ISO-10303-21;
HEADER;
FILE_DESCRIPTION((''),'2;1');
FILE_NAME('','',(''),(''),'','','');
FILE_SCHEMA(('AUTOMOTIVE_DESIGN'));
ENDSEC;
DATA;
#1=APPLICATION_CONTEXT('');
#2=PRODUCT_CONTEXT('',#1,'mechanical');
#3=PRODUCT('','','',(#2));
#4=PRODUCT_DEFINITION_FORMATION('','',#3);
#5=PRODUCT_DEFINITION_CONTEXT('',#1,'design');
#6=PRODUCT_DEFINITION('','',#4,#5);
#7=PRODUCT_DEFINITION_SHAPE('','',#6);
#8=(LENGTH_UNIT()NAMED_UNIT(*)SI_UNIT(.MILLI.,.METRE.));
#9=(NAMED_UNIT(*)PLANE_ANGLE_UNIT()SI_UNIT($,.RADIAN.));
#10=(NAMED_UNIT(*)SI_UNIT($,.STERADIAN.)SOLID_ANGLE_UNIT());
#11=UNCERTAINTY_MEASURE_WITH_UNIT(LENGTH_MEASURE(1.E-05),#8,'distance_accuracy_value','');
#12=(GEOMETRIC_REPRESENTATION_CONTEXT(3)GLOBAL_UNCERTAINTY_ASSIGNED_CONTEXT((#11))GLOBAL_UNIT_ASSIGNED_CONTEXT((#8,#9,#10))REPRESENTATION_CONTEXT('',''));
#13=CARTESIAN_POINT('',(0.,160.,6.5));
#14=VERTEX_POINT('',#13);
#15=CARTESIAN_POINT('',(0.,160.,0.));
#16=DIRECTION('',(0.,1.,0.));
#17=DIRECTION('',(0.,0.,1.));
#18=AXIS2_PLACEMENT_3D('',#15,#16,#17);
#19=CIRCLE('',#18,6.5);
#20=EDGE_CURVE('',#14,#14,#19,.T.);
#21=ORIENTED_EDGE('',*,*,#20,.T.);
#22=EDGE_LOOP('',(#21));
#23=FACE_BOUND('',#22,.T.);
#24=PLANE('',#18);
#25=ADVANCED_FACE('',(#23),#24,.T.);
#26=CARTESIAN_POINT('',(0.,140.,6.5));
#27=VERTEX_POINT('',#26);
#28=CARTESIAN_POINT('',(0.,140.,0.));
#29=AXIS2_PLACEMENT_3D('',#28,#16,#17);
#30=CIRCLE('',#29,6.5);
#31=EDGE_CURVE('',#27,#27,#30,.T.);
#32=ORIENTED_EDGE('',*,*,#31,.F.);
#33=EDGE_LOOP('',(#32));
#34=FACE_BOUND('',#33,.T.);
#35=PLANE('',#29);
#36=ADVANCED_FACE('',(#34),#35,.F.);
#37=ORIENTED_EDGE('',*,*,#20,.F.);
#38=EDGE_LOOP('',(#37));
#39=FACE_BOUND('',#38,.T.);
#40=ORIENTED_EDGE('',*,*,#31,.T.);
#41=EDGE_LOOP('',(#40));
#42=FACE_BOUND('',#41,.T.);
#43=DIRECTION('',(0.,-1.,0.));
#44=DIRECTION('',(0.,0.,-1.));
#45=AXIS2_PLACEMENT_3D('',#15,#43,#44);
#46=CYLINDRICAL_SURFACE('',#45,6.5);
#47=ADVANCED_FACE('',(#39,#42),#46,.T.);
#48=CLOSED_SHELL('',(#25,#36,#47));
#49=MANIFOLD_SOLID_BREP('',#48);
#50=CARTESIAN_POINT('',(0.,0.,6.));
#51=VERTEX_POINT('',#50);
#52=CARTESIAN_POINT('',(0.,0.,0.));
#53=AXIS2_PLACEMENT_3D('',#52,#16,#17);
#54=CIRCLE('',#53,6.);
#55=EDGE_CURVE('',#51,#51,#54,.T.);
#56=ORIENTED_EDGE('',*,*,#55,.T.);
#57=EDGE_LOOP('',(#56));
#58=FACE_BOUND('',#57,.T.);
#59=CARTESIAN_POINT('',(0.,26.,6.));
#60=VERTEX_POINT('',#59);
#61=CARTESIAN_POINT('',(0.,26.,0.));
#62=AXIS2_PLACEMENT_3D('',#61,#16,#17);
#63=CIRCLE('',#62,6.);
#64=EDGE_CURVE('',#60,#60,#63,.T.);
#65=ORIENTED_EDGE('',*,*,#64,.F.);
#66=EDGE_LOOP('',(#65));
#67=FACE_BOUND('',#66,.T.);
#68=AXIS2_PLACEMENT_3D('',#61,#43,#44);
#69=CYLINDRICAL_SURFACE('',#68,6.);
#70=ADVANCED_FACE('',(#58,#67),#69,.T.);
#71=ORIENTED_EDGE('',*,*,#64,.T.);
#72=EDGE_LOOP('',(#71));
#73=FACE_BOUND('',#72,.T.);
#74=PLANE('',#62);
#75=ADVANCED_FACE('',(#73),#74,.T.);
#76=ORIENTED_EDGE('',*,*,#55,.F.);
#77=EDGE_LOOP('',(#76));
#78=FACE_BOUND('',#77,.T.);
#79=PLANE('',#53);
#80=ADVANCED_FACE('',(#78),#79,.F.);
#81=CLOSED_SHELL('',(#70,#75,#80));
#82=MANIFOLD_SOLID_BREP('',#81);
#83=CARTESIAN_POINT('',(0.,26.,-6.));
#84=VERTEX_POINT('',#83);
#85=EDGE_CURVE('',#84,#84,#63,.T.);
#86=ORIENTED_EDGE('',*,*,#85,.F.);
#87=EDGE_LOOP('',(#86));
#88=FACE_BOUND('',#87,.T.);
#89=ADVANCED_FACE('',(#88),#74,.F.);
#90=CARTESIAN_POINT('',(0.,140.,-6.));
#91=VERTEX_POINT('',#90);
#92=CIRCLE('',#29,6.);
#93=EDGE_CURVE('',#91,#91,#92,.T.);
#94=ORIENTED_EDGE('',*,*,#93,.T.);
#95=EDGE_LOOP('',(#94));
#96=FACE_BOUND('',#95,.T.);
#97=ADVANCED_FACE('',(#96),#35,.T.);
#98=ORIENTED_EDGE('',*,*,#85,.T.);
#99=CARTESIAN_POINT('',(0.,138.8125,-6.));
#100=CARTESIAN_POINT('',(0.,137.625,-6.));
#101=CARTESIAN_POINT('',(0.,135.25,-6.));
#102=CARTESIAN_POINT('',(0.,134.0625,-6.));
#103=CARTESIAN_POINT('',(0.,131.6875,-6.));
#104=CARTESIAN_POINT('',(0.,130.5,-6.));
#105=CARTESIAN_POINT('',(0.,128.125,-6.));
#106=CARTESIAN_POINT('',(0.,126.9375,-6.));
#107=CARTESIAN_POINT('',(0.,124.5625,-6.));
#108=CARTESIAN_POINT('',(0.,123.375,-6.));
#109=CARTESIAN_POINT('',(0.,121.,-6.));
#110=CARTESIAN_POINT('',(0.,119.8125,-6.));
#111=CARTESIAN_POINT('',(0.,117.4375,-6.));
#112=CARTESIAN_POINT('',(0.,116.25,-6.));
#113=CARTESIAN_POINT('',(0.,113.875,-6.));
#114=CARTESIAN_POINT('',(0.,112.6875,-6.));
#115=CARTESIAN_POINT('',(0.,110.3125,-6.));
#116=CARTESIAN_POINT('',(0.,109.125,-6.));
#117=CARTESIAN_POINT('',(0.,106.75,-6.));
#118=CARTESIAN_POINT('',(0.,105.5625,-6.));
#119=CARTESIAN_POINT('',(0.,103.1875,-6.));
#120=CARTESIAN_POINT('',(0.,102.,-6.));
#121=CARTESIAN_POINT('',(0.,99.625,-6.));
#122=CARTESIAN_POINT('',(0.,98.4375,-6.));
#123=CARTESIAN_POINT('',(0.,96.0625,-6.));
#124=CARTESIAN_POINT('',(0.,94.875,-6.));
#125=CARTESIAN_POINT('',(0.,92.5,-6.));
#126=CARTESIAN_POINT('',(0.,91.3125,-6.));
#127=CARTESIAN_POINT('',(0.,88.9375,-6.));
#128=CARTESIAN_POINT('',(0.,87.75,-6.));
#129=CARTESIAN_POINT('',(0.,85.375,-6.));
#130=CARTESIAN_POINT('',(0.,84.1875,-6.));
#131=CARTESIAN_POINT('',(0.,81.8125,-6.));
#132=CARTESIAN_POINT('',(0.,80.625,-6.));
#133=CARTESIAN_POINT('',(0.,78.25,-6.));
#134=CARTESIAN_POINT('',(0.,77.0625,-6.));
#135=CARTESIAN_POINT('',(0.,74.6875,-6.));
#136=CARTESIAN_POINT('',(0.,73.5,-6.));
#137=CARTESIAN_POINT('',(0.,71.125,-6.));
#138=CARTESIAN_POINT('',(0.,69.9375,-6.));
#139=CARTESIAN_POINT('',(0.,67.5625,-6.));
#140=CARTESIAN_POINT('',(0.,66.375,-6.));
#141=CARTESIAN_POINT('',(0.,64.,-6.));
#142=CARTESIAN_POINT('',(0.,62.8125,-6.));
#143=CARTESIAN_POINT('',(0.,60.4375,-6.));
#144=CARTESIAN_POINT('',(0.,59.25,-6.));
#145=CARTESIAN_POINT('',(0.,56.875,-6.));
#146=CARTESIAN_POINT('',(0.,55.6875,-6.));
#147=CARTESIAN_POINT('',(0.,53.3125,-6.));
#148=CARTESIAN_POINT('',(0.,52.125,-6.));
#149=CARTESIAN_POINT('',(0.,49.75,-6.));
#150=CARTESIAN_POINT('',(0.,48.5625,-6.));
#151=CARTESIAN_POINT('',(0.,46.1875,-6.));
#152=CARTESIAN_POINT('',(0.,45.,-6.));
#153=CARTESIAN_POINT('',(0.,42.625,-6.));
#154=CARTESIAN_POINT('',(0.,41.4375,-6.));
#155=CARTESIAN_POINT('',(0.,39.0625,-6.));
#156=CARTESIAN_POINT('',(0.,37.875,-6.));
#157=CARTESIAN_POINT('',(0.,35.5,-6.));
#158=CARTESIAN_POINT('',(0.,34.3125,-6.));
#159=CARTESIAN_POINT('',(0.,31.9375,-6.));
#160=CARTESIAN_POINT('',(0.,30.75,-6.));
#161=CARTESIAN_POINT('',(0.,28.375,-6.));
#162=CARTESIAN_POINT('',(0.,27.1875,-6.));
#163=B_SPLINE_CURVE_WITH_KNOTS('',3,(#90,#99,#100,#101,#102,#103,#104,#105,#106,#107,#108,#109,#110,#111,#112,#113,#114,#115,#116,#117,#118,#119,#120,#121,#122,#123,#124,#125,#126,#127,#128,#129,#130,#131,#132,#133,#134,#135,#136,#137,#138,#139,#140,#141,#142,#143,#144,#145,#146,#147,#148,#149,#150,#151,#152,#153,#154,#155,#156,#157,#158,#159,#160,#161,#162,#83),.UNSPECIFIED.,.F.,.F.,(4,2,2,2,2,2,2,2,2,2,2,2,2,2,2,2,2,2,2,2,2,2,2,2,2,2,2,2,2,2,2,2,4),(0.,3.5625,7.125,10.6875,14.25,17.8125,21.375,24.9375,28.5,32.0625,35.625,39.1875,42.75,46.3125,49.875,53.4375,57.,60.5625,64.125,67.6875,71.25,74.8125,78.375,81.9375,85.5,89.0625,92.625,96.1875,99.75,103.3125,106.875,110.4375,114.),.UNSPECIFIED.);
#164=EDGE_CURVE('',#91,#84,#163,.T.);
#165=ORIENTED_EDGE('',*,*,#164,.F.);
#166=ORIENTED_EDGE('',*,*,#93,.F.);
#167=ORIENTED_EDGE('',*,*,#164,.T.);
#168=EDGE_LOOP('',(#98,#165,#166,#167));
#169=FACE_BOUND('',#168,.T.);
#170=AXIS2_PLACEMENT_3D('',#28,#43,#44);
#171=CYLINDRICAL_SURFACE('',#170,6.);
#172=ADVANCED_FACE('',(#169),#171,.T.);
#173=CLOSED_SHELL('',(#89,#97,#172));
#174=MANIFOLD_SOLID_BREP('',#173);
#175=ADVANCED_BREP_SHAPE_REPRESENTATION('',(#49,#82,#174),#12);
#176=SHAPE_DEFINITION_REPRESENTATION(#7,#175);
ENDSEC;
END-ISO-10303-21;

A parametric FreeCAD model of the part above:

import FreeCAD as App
import Part
import Sketcher

V = App.Vector

doc = App.newDocument("Part")
body = doc.addObject("PartDesign::Body", "Body")

sketch1 = doc.addObject("Sketcher::SketchObject", "Sketch")
body.addObject(sketch1)
sketch1.AttachmentSupport = (doc.XZ_Plane, [""])
sketch1.MapMode = "FlatFace"
sketch1.addGeometry(Part.Circle(V(0, 0, 0), V(0, 0, 1), 6), False)
sketch1.addConstraint([
    Sketcher.Constraint("Coincident", 0, 3, -1, 1),
    Sketcher.Constraint("Diameter", 0, 12.0),
])
pad1 = doc.addObject("PartDesign::Pad", "Pad")
body.addObject(pad1)
pad1.Profile = sketch1
pad1.Length = 26
pad1.Reversed = True
body2 = doc.addObject("PartDesign::Body", "Body001")

sketch2 = doc.addObject("Sketcher::SketchObject", "Sketch001")
body2.addObject(sketch2)
sketch2.AttachmentSupport = (doc.getObject("XZ_Plane001"), [""])
sketch2.MapMode = "FlatFace"
sketch2.AttachmentOffset = App.Placement(V(0, 0, -26), App.Rotation())
sketch2.addGeometry(Part.Circle(V(0, 0, 0), V(0, 0, 1), 6), False)
sketch2.addConstraint([
    Sketcher.Constraint("Coincident", 0, 3, -1, 1),
    Sketcher.Constraint("Diameter", 0, 12.0),
])
pad2 = doc.addObject("PartDesign::Pad", "Pad001")
body2.addObject(pad2)
pad2.Profile = sketch2
pad2.Length = 114
pad2.Reversed = True
body3 = doc.addObject("PartDesign::Body", "Body002")

sketch3 = doc.addObject("Sketcher::SketchObject", "Sketch002")
body3.addObject(sketch3)
sketch3.AttachmentSupport = (doc.getObject("XZ_Plane002"), [""])
sketch3.MapMode = "FlatFace"
sketch3.AttachmentOffset = App.Placement(V(0, 0, -140), App.Rotation())
sketch3.addGeometry(Part.Circle(V(0, 0, 0), V(0, 0, 1), 6.5), False)
sketch3.addConstraint([
    Sketcher.Constraint("Coincident", 0, 3, -1, 1),
    Sketcher.Constraint("Diameter", 0, 13.0),
])
pad3 = doc.addObject("PartDesign::Pad", "Pad002")
body3.addObject(pad3)
pad3.Profile = sketch3
pad3.Length = 20
pad3.Reversed = True

doc.recompute()
